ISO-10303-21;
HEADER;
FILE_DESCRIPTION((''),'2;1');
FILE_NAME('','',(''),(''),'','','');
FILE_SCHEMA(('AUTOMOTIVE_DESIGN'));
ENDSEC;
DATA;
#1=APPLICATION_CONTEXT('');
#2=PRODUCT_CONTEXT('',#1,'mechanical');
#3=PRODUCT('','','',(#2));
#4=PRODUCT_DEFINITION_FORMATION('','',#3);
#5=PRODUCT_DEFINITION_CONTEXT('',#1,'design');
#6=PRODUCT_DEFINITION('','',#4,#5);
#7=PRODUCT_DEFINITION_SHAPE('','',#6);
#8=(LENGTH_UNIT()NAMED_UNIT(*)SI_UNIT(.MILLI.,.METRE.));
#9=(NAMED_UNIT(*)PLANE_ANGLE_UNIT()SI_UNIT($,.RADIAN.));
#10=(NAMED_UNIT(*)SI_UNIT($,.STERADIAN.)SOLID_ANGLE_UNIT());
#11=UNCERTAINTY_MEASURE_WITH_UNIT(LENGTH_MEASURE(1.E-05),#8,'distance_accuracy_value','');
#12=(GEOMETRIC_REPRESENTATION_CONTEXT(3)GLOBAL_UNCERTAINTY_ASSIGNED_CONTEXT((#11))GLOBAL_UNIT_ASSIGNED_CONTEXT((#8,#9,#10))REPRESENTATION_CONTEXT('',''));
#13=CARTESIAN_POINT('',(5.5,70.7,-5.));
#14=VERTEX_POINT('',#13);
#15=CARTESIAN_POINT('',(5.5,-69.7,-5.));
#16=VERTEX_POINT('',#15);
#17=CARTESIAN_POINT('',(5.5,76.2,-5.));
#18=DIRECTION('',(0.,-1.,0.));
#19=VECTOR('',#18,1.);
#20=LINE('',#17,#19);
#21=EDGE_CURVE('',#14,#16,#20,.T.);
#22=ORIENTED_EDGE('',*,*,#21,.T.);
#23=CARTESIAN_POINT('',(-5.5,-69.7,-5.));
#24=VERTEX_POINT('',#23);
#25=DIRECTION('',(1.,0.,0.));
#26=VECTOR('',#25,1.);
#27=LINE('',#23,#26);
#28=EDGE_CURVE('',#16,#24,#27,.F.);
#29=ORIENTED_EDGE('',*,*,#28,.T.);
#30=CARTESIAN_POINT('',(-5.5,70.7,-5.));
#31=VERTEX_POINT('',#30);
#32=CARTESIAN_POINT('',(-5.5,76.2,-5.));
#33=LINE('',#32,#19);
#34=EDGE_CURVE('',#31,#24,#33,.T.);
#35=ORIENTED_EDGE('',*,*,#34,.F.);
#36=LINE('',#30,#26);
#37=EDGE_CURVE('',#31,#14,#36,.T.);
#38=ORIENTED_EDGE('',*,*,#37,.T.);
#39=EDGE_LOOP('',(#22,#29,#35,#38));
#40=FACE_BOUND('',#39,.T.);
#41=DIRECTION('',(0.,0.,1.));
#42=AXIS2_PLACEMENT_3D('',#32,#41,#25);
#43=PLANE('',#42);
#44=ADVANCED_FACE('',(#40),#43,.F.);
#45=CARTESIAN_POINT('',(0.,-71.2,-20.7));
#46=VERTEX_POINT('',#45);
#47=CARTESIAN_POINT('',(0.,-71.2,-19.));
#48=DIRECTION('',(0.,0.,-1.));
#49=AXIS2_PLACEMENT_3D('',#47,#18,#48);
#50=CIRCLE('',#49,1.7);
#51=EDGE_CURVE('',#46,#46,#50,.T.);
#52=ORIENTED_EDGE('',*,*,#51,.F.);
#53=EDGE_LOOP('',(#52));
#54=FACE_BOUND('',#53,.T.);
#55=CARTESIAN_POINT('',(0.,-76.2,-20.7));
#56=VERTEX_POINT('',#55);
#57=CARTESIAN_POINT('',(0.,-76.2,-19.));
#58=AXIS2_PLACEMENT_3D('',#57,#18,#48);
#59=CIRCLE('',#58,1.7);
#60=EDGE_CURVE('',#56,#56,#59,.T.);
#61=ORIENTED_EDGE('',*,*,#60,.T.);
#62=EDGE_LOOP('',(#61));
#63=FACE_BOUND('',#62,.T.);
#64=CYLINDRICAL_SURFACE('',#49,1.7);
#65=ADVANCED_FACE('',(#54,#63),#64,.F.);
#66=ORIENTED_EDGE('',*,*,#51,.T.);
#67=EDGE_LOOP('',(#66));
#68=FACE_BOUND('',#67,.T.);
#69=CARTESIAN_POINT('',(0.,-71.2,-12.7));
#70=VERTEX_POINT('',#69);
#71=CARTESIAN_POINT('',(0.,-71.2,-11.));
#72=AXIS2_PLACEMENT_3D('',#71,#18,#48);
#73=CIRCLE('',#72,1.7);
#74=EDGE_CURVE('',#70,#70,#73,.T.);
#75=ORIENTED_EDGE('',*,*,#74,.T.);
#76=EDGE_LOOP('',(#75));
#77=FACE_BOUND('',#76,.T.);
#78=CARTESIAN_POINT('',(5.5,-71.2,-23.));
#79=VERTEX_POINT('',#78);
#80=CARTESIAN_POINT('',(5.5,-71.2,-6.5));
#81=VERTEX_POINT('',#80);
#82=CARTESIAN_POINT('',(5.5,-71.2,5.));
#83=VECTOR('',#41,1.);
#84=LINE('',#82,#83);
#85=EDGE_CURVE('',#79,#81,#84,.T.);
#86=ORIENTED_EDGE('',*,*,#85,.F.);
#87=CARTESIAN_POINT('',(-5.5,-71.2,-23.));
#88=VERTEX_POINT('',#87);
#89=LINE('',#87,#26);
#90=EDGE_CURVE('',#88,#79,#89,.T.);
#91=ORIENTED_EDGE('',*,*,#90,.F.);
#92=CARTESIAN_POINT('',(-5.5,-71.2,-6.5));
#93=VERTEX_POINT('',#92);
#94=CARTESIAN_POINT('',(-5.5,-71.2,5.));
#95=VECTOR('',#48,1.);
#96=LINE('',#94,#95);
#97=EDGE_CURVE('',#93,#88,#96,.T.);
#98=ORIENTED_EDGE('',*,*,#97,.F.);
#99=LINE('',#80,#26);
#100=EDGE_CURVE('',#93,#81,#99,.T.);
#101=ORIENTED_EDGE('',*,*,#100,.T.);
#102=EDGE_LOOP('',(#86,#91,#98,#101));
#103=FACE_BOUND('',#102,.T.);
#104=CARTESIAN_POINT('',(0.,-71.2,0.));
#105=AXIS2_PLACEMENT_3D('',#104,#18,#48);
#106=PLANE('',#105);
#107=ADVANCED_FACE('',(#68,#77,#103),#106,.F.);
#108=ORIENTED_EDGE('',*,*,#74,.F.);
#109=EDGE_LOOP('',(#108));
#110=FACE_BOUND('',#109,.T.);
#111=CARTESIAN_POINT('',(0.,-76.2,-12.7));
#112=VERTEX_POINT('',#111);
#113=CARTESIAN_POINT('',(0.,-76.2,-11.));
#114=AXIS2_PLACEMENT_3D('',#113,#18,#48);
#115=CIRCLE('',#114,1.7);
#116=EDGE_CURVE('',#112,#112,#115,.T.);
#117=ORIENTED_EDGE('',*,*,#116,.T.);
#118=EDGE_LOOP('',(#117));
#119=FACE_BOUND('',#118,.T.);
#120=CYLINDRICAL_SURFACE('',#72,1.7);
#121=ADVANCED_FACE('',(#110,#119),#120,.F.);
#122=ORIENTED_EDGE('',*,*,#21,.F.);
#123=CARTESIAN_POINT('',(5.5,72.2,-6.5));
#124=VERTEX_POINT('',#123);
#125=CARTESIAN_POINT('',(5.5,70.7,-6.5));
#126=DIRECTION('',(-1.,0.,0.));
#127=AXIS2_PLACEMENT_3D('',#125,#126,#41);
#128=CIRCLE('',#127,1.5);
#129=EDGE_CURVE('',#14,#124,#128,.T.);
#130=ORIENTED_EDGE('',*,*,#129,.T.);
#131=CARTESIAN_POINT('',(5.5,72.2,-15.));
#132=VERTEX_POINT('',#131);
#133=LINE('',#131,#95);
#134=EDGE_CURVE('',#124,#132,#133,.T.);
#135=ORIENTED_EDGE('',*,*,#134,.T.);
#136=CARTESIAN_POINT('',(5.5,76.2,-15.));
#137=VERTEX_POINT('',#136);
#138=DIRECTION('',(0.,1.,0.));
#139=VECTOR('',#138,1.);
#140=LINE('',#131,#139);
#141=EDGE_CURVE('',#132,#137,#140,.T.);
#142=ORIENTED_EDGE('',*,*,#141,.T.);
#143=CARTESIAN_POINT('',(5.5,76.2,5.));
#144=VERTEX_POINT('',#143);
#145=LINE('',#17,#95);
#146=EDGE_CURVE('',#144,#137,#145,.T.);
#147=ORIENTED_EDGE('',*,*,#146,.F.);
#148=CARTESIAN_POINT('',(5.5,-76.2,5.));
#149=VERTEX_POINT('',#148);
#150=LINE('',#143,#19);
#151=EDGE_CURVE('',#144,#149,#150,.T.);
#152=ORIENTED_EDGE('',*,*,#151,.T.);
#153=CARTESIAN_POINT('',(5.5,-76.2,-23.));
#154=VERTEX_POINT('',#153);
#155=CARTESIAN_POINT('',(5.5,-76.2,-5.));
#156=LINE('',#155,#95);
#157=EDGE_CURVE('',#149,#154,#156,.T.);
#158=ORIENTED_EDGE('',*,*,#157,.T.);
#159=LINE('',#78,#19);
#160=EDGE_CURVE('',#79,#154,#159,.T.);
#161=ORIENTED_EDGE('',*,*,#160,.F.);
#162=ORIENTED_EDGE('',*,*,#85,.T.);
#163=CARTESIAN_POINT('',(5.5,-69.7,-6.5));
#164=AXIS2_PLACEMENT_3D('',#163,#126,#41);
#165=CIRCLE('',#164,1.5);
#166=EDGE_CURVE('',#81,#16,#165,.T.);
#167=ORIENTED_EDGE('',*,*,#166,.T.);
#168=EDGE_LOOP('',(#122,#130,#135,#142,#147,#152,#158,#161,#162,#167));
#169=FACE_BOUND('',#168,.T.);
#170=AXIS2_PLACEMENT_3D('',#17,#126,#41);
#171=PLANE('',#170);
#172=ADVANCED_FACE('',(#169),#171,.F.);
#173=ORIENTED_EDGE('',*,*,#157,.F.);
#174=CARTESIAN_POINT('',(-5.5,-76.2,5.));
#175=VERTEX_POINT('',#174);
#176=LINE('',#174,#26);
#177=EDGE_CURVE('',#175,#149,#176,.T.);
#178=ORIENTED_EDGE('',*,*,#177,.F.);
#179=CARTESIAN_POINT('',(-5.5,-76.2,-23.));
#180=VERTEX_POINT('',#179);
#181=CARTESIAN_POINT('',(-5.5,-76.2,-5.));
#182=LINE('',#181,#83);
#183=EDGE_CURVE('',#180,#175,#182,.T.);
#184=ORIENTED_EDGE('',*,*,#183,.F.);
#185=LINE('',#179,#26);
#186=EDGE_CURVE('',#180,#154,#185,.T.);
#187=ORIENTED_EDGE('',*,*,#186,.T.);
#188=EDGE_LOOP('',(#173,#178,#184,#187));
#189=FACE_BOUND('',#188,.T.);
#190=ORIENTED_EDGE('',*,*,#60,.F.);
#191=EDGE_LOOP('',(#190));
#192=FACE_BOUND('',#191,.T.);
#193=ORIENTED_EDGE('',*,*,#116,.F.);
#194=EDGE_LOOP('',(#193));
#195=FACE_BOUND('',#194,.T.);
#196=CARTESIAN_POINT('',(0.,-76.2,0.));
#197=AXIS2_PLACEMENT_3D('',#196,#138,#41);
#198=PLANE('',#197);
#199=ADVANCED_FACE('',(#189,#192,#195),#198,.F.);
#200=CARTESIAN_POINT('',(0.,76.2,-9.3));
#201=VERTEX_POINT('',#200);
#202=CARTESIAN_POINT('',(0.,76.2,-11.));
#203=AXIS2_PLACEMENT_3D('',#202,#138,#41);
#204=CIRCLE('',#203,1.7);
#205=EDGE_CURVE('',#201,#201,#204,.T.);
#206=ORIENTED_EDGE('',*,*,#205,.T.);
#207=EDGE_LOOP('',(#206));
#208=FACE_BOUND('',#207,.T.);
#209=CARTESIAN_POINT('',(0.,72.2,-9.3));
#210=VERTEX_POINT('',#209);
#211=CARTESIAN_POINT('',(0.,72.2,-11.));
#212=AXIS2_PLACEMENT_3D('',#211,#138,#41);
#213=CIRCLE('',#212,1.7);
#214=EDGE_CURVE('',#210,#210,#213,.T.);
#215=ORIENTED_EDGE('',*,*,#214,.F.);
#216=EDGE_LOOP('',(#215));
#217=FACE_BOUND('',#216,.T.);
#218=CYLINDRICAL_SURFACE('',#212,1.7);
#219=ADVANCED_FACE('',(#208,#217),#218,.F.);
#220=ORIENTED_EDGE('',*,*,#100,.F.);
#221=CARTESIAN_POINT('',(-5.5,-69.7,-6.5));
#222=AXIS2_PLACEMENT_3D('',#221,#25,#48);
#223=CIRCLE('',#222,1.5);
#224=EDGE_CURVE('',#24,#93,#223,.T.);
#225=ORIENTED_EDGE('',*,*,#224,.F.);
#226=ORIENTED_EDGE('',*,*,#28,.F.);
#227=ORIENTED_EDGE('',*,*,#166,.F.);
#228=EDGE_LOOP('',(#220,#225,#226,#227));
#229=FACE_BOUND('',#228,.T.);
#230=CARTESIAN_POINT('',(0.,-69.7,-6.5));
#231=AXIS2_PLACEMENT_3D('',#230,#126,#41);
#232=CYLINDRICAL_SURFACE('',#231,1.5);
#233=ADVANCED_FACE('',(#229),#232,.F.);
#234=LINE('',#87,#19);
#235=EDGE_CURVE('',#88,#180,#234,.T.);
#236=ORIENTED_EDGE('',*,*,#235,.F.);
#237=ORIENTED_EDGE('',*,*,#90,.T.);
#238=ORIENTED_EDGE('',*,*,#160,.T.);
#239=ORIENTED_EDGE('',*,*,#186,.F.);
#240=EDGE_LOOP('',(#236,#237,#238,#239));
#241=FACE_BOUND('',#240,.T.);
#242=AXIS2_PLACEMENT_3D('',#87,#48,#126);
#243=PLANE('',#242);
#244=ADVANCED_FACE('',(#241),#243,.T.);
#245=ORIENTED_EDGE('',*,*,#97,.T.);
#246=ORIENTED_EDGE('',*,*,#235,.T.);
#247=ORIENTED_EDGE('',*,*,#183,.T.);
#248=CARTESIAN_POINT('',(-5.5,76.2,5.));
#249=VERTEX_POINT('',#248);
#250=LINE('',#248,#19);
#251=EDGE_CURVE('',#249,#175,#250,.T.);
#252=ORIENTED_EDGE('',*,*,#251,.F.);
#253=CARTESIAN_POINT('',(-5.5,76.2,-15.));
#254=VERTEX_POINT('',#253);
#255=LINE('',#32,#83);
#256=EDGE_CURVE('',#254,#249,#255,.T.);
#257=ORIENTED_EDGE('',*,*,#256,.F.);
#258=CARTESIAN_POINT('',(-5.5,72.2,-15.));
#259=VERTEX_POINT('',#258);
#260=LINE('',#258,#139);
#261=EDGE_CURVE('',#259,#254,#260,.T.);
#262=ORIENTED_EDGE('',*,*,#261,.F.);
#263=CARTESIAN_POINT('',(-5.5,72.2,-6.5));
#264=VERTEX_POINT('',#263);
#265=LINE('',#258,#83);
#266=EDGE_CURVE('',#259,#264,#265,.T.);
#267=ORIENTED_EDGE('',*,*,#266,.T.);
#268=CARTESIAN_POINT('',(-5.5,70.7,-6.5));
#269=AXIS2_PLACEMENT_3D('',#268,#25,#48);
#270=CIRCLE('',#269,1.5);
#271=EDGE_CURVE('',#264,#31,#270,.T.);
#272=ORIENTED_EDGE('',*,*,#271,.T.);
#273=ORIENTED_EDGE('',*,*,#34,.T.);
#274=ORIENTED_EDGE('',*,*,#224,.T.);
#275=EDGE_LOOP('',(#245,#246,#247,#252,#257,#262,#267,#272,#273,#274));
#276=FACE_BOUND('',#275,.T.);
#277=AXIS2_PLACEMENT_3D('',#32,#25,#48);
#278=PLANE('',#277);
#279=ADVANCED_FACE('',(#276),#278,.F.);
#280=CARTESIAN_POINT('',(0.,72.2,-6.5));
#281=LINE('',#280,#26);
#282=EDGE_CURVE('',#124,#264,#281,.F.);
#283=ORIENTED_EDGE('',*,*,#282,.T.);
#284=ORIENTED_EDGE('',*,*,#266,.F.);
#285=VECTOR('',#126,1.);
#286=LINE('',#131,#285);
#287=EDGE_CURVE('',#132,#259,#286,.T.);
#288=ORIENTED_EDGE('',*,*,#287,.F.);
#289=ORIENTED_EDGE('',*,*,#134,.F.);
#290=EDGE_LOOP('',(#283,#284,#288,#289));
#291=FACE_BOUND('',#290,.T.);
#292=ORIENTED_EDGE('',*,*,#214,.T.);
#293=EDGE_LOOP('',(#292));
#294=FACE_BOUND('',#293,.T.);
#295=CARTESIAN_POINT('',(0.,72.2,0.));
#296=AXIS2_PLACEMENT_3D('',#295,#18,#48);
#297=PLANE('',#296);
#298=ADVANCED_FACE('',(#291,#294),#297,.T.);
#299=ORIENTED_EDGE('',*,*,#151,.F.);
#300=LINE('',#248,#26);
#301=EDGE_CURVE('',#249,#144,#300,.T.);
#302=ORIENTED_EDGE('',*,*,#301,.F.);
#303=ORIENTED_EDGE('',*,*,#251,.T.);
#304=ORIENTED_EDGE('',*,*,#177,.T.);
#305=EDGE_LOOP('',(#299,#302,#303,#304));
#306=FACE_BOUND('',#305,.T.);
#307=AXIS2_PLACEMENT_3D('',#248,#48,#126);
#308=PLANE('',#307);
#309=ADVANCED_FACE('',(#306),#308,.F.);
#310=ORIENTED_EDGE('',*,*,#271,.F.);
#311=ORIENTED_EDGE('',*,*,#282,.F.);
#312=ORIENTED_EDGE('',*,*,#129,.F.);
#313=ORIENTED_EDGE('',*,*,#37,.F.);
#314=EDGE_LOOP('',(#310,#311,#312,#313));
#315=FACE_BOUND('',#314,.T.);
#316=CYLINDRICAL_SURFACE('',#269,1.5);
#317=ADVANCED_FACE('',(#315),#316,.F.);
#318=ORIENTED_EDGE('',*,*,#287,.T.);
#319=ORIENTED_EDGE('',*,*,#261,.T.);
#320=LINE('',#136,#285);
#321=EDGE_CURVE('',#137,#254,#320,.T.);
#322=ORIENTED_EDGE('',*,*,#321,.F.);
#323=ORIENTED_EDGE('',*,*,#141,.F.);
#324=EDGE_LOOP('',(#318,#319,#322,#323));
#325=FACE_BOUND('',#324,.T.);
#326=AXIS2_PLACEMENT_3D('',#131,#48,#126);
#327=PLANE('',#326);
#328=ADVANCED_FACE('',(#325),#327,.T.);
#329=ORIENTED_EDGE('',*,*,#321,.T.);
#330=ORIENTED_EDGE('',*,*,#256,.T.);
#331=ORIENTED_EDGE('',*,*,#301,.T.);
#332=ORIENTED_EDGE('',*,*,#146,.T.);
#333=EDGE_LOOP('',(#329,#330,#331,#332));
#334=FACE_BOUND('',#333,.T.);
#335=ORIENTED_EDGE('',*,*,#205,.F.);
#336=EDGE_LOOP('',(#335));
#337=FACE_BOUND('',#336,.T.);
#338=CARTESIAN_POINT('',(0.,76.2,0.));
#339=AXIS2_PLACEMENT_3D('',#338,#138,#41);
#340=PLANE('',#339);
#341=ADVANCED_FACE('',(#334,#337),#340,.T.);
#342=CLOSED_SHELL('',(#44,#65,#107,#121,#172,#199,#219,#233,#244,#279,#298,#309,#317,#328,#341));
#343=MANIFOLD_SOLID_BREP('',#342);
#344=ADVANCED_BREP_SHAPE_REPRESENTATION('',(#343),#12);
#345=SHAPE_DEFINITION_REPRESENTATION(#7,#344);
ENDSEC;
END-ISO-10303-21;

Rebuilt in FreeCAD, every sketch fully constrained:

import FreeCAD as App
import Part
import Sketcher


def edges_at(feature, points):
    """Names of the edges that pass closest to the given points."""
    edges = feature.Shape.Edges
    near = lambda p: min(range(len(edges)), key=lambda i: edges[i].distToShape(Part.Vertex(*p))[0])
    return sorted({f"Edge{near(p) + 1}" for p in points})


def add_polygon(sketch, points):
    """Adds a closed chain of lines whose ends are joined by coincident constraints."""
    first, n = sketch.GeometryCount, len(points)
    for a, b in zip(points, points[1:] + points[:1]):
        sketch.addGeometry(Part.LineSegment(App.Vector(*a, 0), App.Vector(*b, 0)), False)
    for i in range(n):
        sketch.addConstraint(Sketcher.Constraint("Coincident", first + i, 2, first + (i + 1) % n, 1))

doc = App.newDocument("Part")
body = doc.addObject("PartDesign::Body", "Body")

sketch1 = doc.addObject("Sketcher::SketchObject", "Sketch")
body.addObject(sketch1)
sketch1.AttachmentSupport = (doc.XZ_Plane, [""])
sketch1.MapMode = "FlatFace"
add_polygon(sketch1, [(-6, -5), (-6, 5), (6, 5), (6, -5)])
sketch1.addConstraint([
    Sketcher.Constraint("Vertical", 0),
    Sketcher.Constraint("Horizontal", 1),
    Sketcher.Constraint("Vertical", 2),
    Sketcher.Constraint("Horizontal", 3),
    Sketcher.Constraint("Symmetric", 0, 2, 2, 2, -1, 1),
    Sketcher.Constraint("DistanceX", 1, 1, 1, 2, 11.0),
    Sketcher.Constraint("DistanceY", 0, 1, 0, 2, 10.0),
])
pad1 = doc.addObject("PartDesign::Pad", "Pad")
body.addObject(pad1)
pad1.Profile = sketch1
pad1.Length = 152.4
pad1.Midplane = True

sketch2 = doc.addObject("Sketcher::SketchObject", "Sketch001")
body.addObject(sketch2)
sketch2.AttachmentSupport = (doc.XZ_Plane, [""])
sketch2.MapMode = "FlatFace"
sketch2.AttachmentOffset = App.Placement(App.Vector(0, 0, -76.2), App.Rotation())
add_polygon(sketch2, [(-5.5, -15), (-5.5, 5), (5.5, 5), (5.5, -15)])
sketch2.addGeometry(Part.Circle(App.Vector(0, -11, 0), App.Vector(0, 0, 1), 1.7), False)
sketch2.addConstraint([
    Sketcher.Constraint("Vertical", 0),
    Sketcher.Constraint("Horizontal", 1),
    Sketcher.Constraint("Vertical", 2),
    Sketcher.Constraint("Horizontal", 3),
    Sketcher.Constraint("PointOnObject", 4, 3, -2),
    Sketcher.Constraint("Diameter", 4, 3.4),
    Sketcher.Constraint("DistanceX", 1, 1, 1, 2, 11.0),
    Sketcher.Constraint("DistanceY", 0, 1, 0, 2, 20.0),
    Sketcher.Constraint("DistanceY", 4, 3, -1, 1, 11.0),
    Sketcher.Constraint("DistanceY", -1, 1, 0, 2, 5.0),
    Sketcher.Constraint("DistanceX", 0, 2, -1, 1, 5.5),
])
pad2 = doc.addObject("PartDesign::Pad", "Pad001")
body.addObject(pad2)
pad2.Profile = sketch2
pad2.Length = 4

sketch3 = doc.addObject("Sketcher::SketchObject", "Sketch002")
body.addObject(sketch3)
sketch3.AttachmentSupport = (doc.XZ_Plane, [""])
sketch3.MapMode = "FlatFace"
sketch3.AttachmentOffset = App.Placement(App.Vector(0, 0, 71.2), App.Rotation())
add_polygon(sketch3, [(-5.5, 5), (-5.5, -23), (5.5, -23), (5.5, 5)])
sketch3.addGeometry(Part.Circle(App.Vector(0, -19, 0), App.Vector(0, 0, 1), 1.7), False)
sketch3.addGeometry(Part.Circle(App.Vector(0, -11, 0), App.Vector(0, 0, 1), 1.7), False)
sketch3.addConstraint([
    Sketcher.Constraint("Vertical", 0),
    Sketcher.Constraint("Horizontal", 1),
    Sketcher.Constraint("Vertical", 2),
    Sketcher.Constraint("Horizontal", 3),
    Sketcher.Constraint("Equal", 4, 5),
    Sketcher.Constraint("PointOnObject", 4, 3, -2),
    Sketcher.Constraint("PointOnObject", 5, 3, -2),
    Sketcher.Constraint("Diameter", 4, 3.4),
    Sketcher.Constraint("DistanceX", 1, 1, 1, 2, 11.0),
    Sketcher.Constraint("DistanceY", 0, 2, 0, 1, 28.0),
    Sketcher.Constraint("DistanceY", 4, 3, -1, 1, 19.0),
    Sketcher.Constraint("DistanceY", 5, 3, -1, 1, 11.0),
    Sketcher.Constraint("DistanceY", 0, 2, -1, 1, 23.0),
    Sketcher.Constraint("DistanceX", 0, 2, -1, 1, 5.5),
])
pad3 = doc.addObject("PartDesign::Pad", "Pad002")
body.addObject(pad3)
pad3.Profile = sketch3
pad3.Length = 5
doc.recompute()

fillet = doc.addObject("PartDesign::Fillet", "Fillet")
body.addObject(fillet)
fillet.Base = (pad3, edges_at(pad3, [(0, 72.2, -5), (0, -71.2, -5)]))
fillet.Radius = 1.5

doc.recompute()
